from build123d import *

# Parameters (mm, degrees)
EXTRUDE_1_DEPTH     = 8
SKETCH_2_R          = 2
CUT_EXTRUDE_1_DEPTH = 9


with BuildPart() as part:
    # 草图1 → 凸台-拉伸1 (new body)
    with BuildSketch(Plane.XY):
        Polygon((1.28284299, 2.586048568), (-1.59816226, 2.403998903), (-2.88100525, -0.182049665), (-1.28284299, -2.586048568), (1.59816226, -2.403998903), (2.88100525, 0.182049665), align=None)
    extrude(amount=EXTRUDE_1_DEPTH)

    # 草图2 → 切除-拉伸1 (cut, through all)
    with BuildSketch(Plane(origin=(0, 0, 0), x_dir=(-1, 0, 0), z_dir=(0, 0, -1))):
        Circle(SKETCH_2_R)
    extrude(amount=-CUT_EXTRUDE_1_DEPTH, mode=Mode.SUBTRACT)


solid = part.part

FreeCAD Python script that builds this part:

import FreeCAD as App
import Part
import Sketcher

V = App.Vector


def add_polygon(sketch, points):
    """Adds a closed chain of lines whose ends are joined by coincident constraints."""
    first, n = sketch.GeometryCount, len(points)
    for a, b in zip(points, points[1:] + points[:1]):
        sketch.addGeometry(Part.LineSegment(App.Vector(*a, 0), App.Vector(*b, 0)), False)
    for i in range(n):
        sketch.addConstraint(Sketcher.Constraint("Coincident", first + i, 2, first + (i + 1) % n, 1))

doc = App.newDocument("Part")
params = doc.addObject("Spreadsheet::Sheet", "Params")
for row, (alias, value) in enumerate([
    ("pad1_length", "8 mm"),
    ("sketch2_diameter", "4 mm"),
], start=1):
    params.set(f"A{row}", alias)
    params.set(f"B{row}", "=" + value)
    params.setAlias(f"B{row}", alias)

body = doc.addObject("PartDesign::Body", "Body")

sketch1 = body.newObject("Sketcher::SketchObject", "Sketch")
sketch1.AttachmentSupport = (doc.getObject("XY_Plane"), [""])
sketch1.MapMode = "FlatFace"
add_polygon(sketch1, [(1.282843, 2.586049), (-1.598162, 2.403999), (-2.881005, -0.18205), (-1.282843, -2.586049), (1.598162, -2.403999), (2.881005, 0.18205)])
sketch1.addConstraint(Sketcher.Constraint("Symmetric", 0, 2, 3, 2, -1, 1))
sketch1.addConstraint(Sketcher.Constraint("Symmetric", 1, 2, 4, 2, -1, 1))
sketch1.addConstraint(Sketcher.Constraint("Symmetric", 2, 2, 5, 2, -1, 1))
sketch1.addConstraint(Sketcher.Constraint("Equal", 0, 1))
sketch1.addConstraint(Sketcher.Constraint("Equal", 1, 2))
sketch1.addConstraint(Sketcher.Constraint("DistanceY", -1, 1, 0, 2, 2.403999))
sketch1.addConstraint(Sketcher.Constraint("DistanceY", 2, 2, 1, 2, 2.403999))
sketch1.addConstraint(Sketcher.Constraint("DistanceY", 2, 2, 4, 2, 2.768098))
sketch1.addConstraint(Sketcher.Constraint("Distance", 0, 2.886751))
pad1 = body.newObject("PartDesign::Pad", "Pad")
pad1.Profile = sketch1
pad1.setExpression("Length", "Params.pad1_length")

sketch2 = body.newObject("Sketcher::SketchObject", "Sketch001")
sketch2.AttachmentSupport = (doc.getObject("XY_Plane"), [""])
sketch2.MapMode = "FlatFace"
sketch2.addGeometry(Part.Circle(V(0, 0, 0), V(0, 0, 1), 2), False)
sketch2.addConstraint(Sketcher.Constraint("Coincident", 0, 3, -1, 1))
sketch2.addConstraint(Sketcher.Constraint("Diameter", 0, 4.0))
sketch2.setExpression("Constraints[1]", "Params.sketch2_diameter")
pocket1 = body.newObject("PartDesign::Pocket", "Pocket")
pocket1.Profile = sketch2
pocket1.Type = "ThroughAll"
pocket1.Reversed = True

doc.recompute()
